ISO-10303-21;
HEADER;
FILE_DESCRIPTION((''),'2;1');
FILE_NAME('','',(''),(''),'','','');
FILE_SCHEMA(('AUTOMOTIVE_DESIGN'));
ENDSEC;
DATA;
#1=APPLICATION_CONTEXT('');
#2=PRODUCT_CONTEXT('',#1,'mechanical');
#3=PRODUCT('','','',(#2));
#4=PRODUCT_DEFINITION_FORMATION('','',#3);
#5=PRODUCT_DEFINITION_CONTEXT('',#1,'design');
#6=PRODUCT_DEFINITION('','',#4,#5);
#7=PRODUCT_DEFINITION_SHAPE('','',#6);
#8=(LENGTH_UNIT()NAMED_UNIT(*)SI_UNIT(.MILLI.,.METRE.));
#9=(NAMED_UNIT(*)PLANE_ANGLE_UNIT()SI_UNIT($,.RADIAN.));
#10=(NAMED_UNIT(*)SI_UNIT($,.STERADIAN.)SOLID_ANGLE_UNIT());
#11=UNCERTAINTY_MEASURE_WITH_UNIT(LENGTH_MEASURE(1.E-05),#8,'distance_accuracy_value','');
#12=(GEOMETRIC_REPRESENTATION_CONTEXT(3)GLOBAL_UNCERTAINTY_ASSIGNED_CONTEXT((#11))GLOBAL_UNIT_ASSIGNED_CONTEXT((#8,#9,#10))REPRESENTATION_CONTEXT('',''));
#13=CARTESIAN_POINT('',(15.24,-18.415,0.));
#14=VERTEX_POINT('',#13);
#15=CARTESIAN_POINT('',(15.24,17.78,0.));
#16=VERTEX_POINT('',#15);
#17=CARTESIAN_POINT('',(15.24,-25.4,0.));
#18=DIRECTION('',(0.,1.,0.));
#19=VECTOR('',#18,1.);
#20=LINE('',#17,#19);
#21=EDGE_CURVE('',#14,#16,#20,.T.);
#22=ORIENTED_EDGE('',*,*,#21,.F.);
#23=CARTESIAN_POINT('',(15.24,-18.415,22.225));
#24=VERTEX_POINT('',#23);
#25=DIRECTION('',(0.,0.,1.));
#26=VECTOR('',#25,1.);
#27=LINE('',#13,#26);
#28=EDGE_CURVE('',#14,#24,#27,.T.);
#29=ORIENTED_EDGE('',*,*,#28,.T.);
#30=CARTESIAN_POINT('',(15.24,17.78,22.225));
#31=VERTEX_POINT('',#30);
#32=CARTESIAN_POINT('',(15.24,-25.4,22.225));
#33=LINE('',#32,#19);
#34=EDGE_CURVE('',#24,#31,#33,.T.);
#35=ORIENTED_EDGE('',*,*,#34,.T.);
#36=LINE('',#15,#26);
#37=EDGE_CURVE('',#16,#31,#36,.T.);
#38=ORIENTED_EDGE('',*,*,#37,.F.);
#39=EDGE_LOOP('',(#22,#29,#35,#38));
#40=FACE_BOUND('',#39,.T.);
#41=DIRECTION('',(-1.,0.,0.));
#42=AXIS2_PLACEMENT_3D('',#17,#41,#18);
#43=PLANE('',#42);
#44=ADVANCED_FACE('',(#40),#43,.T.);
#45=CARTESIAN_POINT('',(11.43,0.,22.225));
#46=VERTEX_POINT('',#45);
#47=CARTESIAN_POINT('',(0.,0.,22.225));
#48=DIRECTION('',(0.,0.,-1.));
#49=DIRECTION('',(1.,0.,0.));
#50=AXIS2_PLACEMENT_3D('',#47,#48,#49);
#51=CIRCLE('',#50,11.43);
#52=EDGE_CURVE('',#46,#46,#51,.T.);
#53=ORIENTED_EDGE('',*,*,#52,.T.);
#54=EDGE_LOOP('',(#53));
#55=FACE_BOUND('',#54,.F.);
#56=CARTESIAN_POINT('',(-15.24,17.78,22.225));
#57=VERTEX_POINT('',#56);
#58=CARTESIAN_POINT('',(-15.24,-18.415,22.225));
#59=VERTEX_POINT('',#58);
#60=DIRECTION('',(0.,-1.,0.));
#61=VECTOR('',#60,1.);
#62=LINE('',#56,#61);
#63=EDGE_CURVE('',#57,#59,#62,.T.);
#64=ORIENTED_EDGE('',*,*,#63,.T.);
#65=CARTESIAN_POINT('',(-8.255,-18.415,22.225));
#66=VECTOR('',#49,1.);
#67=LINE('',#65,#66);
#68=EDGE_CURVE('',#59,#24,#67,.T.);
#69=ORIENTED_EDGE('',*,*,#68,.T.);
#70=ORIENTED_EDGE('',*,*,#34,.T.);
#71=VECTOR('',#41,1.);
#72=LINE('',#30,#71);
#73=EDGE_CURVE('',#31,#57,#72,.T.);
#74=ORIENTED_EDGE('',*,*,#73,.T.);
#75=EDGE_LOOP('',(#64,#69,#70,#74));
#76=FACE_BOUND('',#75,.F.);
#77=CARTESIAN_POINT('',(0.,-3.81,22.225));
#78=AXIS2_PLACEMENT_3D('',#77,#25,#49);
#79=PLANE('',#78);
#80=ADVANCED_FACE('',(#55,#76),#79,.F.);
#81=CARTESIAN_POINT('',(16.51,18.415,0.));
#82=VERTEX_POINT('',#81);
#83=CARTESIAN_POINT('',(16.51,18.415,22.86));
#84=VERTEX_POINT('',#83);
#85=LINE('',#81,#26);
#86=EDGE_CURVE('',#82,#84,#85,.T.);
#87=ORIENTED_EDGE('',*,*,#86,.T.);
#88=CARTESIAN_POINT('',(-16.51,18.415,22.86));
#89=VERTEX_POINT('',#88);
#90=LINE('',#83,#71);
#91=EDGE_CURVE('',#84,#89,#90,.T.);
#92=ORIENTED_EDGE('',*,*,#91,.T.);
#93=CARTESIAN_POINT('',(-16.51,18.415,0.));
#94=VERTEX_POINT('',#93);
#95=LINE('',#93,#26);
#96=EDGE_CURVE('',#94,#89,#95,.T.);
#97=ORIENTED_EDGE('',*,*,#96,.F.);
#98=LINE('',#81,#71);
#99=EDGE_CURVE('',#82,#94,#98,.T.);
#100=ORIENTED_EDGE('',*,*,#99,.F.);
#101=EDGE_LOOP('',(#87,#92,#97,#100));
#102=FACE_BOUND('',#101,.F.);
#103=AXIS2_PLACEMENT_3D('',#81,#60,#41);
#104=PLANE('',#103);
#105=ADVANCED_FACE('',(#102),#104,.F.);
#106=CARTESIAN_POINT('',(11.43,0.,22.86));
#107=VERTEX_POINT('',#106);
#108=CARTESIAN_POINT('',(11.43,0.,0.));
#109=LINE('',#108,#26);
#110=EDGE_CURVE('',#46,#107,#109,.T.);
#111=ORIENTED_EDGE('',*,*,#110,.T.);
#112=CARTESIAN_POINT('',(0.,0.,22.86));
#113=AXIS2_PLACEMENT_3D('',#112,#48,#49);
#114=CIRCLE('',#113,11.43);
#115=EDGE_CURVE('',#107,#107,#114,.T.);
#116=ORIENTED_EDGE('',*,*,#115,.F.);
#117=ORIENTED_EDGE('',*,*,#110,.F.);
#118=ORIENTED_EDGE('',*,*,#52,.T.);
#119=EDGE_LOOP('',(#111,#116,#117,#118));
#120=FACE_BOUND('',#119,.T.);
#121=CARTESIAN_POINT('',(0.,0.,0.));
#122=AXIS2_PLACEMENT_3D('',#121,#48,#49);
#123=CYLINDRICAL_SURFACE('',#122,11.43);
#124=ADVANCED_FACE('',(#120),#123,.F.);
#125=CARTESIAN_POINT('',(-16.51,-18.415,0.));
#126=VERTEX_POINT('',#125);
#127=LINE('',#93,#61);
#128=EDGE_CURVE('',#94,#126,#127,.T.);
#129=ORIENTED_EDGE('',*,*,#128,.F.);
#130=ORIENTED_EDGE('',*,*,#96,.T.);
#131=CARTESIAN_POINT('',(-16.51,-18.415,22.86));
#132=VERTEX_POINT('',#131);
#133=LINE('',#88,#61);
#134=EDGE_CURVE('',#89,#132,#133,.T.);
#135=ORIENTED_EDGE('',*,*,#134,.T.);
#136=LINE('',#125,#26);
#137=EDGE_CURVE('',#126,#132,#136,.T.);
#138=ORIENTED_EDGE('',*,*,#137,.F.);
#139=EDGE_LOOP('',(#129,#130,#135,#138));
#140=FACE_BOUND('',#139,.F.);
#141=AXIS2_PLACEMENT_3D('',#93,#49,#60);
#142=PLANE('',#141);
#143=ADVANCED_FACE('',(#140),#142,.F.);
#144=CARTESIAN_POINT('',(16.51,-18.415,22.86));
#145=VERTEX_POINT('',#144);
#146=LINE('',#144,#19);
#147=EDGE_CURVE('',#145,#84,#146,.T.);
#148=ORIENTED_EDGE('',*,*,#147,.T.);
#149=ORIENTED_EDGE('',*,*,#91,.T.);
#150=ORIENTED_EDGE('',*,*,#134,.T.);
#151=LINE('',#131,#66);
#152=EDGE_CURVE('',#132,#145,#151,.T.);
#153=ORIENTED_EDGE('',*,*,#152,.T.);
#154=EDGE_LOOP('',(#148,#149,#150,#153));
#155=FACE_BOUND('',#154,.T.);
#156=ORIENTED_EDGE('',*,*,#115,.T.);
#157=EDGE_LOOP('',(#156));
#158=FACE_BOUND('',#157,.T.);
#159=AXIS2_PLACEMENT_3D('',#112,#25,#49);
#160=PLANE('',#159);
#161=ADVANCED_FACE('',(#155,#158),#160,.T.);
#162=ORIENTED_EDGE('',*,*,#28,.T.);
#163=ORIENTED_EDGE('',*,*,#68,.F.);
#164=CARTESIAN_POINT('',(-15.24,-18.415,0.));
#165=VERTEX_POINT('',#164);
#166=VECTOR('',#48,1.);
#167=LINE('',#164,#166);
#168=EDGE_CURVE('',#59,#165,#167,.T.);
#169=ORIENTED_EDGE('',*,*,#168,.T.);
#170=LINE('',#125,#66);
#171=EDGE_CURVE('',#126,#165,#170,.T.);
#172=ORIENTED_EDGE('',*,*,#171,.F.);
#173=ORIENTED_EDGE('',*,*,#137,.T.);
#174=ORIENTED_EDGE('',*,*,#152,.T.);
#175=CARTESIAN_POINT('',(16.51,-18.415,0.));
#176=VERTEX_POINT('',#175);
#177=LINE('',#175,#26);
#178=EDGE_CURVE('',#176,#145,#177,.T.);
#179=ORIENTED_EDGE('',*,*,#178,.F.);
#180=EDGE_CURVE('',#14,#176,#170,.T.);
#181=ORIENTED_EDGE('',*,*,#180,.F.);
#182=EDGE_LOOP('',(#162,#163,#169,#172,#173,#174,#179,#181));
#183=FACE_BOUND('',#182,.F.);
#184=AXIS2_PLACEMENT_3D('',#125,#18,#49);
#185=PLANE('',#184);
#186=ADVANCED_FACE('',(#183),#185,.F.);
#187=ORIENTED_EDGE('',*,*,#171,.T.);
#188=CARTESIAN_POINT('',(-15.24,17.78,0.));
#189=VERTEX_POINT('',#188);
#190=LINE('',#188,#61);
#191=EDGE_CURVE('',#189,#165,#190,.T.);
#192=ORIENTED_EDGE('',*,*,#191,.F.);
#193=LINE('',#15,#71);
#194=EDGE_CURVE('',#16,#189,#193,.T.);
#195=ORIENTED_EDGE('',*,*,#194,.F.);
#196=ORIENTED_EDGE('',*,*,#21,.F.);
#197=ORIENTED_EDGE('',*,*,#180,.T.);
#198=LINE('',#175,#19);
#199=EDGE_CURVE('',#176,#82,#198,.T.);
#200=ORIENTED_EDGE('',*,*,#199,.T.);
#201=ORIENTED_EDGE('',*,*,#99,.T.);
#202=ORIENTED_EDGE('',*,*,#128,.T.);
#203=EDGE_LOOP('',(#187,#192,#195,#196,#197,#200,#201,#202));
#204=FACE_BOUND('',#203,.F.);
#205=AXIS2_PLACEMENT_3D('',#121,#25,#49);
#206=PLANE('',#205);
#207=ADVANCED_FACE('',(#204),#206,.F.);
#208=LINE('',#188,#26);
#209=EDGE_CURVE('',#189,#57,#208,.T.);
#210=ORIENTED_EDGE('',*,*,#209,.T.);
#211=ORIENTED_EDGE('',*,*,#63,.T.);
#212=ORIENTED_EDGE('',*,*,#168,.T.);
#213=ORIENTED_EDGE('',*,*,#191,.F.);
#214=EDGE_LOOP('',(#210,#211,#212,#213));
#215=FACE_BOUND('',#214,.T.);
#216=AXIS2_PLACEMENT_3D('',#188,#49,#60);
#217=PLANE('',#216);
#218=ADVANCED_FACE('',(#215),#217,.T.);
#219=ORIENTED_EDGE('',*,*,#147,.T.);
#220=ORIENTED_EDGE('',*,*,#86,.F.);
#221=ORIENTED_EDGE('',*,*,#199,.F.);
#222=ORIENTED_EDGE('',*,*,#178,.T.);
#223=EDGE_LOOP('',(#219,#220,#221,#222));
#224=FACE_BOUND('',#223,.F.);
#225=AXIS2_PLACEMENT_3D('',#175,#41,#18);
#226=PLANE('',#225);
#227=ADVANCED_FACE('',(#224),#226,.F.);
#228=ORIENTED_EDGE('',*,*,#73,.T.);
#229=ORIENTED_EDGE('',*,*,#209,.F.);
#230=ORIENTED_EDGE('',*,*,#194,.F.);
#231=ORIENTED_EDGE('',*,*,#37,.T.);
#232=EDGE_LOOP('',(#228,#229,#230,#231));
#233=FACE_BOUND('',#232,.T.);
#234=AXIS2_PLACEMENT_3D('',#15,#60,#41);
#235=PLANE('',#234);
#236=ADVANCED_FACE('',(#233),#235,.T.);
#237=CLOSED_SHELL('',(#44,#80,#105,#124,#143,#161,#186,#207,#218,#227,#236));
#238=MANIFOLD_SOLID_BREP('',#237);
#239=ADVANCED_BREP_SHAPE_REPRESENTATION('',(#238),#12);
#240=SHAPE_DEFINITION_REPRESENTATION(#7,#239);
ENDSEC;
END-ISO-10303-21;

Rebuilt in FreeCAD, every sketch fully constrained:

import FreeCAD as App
import Part
import Sketcher
from FreeCAD import Vector
Q = App.Units.Quantity


def add_polygon(sketch, points):
    """Adds a closed chain of lines whose ends are joined by coincident constraints."""
    first, n = sketch.GeometryCount, len(points)
    for a, b in zip(points, points[1:] + points[:1]):
        sketch.addGeometry(Part.LineSegment(App.Vector(*a, 0), App.Vector(*b, 0)), False)
    for i in range(n):
        sketch.addConstraint(Sketcher.Constraint("Coincident", first + i, 2, first + (i + 1) % n, 1))

doc = App.newDocument("Part")
body = doc.addObject("PartDesign::Body", "Body")

sketch1 = doc.addObject("Sketcher::SketchObject", "Sketch")
body.addObject(sketch1)
sketch1.AttachmentSupport = (doc.XY_Plane, [""])
sketch1.MapMode = "FlatFace"
add_polygon(sketch1, [(-16.51, 18.415), (-16.51, -18.415), (16.51, -18.415), (16.51, 18.415)])
sketch1.addConstraint(Sketcher.Constraint("Vertical", 0))
sketch1.addConstraint(Sketcher.Constraint("Horizontal", 1))
sketch1.addConstraint(Sketcher.Constraint("Vertical", 2))
sketch1.addConstraint(Sketcher.Constraint("Horizontal", 3))
sketch1.addConstraint(Sketcher.Constraint("Symmetric", 0, 2, 2, 2, -1, 1))
sketch1.addConstraint(Sketcher.Constraint("DistanceX", 1, 1, 1, 2, Q("1.3 in")))
sketch1.addConstraint(Sketcher.Constraint("DistanceY", 0, 2, 0, 1, Q("1.45 in")))
pad1 = doc.addObject("PartDesign::Pad", "Pad")
body.addObject(pad1)
pad1.Profile = sketch1
pad1.Length = Q("0.9 in")

sketch2 = doc.addObject("Sketcher::SketchObject", "Sketch001")
body.addObject(sketch2)
sketch2.AttachmentSupport = (doc.XY_Plane, [""])
sketch2.MapMode = "FlatFace"
sketch2.addGeometry(Part.Circle(Vector(0, 0, 0), Vector(0, 0, 1), 11.43), False)
sketch2.addConstraint(Sketcher.Constraint("Coincident", 0, 3, -1, 1))
sketch2.addConstraint(Sketcher.Constraint("Diameter", 0, Q("0.9 in")))
pocket1 = doc.addObject("PartDesign::Pocket", "Pocket")
body.addObject(pocket1)
pocket1.Profile = sketch2
pocket1.Type = "ThroughAll"
pocket1.Reversed = True

sketch3 = doc.addObject("Sketcher::SketchObject", "Sketch002")
body.addObject(sketch3)
sketch3.AttachmentSupport = (doc.XY_Plane, [""])
sketch3.MapMode = "FlatFace"
add_polygon(sketch3, [(-15.24, 17.78), (-15.24, -25.4), (15.24, -25.4), (15.24, 17.78)])
sketch3.addConstraint(Sketcher.Constraint("Vertical", 0))
sketch3.addConstraint(Sketcher.Constraint("Horizontal", 1))
sketch3.addConstraint(Sketcher.Constraint("Vertical", 2))
sketch3.addConstraint(Sketcher.Constraint("Horizontal", 3))
sketch3.addConstraint(Sketcher.Constraint("DistanceX", 1, 1, 1, 2, Q("1.2 in")))
sketch3.addConstraint(Sketcher.Constraint("DistanceY", 0, 2, 0, 1, Q("1.7 in")))
sketch3.addConstraint(Sketcher.Constraint("DistanceY", 0, 2, -1, 1, Q("1 in")))
sketch3.addConstraint(Sketcher.Constraint("DistanceX", 0, 2, -1, 1, Q("0.6 in")))
pocket2 = doc.addObject("PartDesign::Pocket", "Pocket001")
body.addObject(pocket2)
pocket2.Profile = sketch3
pocket2.Length = Q("0.875 in")
pocket2.Reversed = True

sketch4 = doc.addObject("Sketcher::SketchObject", "Sketch003")
body.addObject(sketch4)
sketch4.AttachmentSupport = (doc.XY_Plane, [""])
sketch4.MapMode = "FlatFace"
add_polygon(sketch4, [(12.568022, 0), (-12.568022, 0), (-12.568022, -23.286249), (12.568022, -23.286249)])
sketch4.addConstraint(Sketcher.Constraint("Horizontal", 0))
sketch4.addConstraint(Sketcher.Constraint("Vertical", 1))
sketch4.addConstraint(Sketcher.Constraint("Horizontal", 2))
sketch4.addConstraint(Sketcher.Constraint("Vertical", 3))
sketch4.addConstraint(Sketcher.Constraint("Symmetric", 0, 2, 3, 2, -1, 1))
sketch4.addConstraint(Sketcher.Constraint("DistanceY", 1, 2, 1, 1, Q("23.286249 mm")))
sketch4.addConstraint(Sketcher.Constraint("DistanceX", 0, 2, 0, 1, Q("25.136044 mm")))
pocket3 = doc.addObject("PartDesign::Pocket", "Pocket002")
body.addObject(pocket3)
pocket3.Profile = sketch4
pocket3.Length = Q("0.469 in")
pocket3.Reversed = True

doc.recompute()
